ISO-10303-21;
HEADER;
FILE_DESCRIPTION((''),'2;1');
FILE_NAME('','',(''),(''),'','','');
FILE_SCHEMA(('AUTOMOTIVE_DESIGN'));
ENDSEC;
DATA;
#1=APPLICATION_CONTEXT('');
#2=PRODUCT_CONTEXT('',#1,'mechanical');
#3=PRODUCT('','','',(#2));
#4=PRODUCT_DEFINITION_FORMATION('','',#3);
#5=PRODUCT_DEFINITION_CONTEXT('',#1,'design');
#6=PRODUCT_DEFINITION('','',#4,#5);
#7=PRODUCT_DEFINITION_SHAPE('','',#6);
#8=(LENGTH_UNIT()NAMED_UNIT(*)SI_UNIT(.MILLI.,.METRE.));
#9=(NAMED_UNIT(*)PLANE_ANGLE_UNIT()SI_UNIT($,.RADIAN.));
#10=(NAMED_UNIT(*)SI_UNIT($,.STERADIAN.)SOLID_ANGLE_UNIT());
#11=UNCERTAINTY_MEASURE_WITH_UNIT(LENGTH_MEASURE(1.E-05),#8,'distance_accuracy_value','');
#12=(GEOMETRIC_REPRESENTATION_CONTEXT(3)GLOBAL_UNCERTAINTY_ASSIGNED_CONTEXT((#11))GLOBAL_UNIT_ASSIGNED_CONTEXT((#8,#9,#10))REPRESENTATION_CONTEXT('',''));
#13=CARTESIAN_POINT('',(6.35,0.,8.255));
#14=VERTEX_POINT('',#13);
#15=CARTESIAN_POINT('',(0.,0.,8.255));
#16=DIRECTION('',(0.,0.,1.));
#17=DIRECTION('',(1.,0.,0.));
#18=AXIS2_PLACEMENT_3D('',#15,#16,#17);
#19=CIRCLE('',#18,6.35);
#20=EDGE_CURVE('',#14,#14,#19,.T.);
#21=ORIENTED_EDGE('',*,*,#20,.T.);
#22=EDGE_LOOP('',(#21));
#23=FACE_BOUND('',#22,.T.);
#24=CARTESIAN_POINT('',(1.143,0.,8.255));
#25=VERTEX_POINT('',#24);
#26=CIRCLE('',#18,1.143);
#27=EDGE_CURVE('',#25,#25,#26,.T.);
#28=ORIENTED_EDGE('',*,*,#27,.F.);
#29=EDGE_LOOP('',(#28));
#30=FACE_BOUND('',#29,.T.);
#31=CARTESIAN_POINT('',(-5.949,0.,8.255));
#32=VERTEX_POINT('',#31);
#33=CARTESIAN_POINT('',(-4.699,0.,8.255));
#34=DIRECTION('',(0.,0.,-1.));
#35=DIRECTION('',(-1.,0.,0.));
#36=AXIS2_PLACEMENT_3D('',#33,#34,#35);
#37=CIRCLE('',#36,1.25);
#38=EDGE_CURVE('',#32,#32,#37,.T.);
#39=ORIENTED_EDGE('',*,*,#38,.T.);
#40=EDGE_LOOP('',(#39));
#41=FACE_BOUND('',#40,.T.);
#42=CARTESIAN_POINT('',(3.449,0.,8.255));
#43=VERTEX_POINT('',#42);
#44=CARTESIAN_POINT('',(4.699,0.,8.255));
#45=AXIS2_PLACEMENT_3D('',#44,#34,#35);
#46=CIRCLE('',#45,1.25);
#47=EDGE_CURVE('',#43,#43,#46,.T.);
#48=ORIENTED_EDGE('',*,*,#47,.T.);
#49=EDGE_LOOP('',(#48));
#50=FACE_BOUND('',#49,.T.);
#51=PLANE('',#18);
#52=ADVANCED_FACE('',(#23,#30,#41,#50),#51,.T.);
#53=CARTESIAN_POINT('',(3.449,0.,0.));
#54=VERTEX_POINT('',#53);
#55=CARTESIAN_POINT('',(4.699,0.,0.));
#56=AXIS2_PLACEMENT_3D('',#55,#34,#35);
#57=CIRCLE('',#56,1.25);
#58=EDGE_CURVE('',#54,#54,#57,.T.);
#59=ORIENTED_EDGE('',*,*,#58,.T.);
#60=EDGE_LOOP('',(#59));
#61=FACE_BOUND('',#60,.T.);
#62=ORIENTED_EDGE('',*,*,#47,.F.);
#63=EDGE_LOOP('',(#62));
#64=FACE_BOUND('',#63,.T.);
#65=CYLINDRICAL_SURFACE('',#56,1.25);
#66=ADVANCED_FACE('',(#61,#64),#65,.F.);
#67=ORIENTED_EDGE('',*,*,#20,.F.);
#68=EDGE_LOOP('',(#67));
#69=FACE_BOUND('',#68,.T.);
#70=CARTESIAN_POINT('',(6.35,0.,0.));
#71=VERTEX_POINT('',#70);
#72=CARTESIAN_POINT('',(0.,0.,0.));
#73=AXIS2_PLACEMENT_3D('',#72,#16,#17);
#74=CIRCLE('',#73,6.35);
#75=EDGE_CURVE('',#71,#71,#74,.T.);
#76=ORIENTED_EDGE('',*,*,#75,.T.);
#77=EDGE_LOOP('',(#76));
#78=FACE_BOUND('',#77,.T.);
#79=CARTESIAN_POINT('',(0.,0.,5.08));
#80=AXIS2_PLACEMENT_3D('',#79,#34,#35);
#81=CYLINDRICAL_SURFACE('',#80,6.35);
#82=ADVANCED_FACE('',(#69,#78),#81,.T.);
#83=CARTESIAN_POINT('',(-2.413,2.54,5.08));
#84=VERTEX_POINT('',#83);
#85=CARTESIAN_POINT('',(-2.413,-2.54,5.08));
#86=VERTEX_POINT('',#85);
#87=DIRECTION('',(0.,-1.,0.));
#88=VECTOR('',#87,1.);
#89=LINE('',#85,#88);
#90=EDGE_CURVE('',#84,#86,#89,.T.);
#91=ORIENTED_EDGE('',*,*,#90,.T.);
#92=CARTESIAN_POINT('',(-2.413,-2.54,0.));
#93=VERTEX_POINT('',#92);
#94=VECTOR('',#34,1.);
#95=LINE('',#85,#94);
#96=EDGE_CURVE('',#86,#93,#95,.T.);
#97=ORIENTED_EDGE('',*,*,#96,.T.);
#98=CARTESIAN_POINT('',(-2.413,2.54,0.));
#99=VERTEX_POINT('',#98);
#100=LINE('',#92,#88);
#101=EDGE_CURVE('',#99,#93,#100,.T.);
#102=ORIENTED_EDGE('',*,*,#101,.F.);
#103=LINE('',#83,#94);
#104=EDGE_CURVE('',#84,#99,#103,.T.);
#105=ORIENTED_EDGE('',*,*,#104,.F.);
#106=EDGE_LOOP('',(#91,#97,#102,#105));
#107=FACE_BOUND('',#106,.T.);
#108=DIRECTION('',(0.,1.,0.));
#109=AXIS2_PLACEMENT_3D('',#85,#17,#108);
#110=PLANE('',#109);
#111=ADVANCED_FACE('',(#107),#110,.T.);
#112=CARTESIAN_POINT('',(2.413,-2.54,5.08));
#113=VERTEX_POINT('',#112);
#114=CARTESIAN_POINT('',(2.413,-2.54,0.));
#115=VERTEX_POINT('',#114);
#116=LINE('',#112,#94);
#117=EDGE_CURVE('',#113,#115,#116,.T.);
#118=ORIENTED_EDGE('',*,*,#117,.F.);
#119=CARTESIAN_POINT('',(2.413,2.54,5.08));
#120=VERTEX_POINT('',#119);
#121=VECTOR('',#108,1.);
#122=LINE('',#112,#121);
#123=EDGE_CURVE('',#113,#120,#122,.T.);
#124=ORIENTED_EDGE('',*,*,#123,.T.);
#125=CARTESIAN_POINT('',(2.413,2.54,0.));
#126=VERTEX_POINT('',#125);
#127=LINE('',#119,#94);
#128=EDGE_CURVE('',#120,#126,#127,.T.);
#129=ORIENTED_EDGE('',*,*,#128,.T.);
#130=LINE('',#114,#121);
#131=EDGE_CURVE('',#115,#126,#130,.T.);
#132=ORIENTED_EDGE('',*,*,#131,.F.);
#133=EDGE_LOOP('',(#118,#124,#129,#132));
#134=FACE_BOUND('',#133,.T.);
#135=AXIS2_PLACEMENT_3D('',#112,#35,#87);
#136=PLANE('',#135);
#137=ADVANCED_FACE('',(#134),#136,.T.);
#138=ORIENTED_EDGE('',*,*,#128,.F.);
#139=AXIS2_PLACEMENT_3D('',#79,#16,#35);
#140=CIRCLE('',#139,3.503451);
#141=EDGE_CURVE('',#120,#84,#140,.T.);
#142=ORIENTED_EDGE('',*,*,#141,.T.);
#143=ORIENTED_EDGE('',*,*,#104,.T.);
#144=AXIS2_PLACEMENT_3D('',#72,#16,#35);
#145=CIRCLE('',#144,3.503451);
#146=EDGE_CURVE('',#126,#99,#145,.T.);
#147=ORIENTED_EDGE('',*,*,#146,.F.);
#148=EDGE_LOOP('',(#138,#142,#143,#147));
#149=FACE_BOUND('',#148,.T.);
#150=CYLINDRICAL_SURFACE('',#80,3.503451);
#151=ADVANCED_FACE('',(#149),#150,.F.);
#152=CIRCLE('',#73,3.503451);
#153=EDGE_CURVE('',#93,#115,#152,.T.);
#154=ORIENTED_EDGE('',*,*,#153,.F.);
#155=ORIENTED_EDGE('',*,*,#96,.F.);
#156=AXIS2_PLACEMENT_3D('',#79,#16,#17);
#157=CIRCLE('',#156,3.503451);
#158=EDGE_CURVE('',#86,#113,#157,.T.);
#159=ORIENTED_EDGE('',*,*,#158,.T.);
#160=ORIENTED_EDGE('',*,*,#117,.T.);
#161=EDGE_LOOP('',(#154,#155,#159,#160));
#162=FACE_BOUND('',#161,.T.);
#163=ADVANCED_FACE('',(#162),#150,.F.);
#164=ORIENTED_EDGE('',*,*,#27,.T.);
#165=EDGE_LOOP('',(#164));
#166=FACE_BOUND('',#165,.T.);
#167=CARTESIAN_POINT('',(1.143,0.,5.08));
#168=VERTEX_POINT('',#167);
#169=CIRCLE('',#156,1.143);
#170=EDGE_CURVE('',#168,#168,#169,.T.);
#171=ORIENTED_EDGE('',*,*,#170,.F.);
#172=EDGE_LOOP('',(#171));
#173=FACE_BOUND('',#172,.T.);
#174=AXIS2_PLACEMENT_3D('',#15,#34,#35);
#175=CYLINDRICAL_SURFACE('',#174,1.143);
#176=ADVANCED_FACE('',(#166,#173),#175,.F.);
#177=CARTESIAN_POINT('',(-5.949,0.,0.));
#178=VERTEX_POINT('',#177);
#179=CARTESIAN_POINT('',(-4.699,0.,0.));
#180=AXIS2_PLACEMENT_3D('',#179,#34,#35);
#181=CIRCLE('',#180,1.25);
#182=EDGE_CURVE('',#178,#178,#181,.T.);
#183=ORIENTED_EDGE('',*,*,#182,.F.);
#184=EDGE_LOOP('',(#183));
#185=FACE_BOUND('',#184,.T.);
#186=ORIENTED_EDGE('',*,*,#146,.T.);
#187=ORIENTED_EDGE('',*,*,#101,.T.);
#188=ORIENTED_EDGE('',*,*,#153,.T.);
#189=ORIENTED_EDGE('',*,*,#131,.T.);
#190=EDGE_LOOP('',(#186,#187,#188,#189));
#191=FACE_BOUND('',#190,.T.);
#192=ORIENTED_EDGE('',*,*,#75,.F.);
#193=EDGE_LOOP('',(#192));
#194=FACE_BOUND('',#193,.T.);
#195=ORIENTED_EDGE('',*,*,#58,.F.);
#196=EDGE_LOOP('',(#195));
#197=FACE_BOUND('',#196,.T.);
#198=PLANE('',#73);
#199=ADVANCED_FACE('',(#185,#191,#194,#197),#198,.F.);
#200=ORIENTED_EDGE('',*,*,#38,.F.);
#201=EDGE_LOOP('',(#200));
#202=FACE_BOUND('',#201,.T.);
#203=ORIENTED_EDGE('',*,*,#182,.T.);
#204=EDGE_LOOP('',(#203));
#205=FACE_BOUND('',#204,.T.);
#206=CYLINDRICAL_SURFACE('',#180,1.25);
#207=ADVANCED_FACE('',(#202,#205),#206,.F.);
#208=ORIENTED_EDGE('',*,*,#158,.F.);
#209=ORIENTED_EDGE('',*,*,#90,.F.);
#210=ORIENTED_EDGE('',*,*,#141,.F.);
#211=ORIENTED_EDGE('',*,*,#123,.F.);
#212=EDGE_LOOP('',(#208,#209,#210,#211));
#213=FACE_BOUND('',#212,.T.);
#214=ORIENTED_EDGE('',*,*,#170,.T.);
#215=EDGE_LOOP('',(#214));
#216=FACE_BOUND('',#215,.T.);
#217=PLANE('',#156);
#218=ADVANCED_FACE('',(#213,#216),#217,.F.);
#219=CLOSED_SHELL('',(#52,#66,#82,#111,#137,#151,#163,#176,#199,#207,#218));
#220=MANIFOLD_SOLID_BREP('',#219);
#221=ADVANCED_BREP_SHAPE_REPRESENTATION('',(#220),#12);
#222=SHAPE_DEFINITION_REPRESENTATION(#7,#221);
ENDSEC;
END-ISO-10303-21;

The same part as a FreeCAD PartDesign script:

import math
import FreeCAD as App
import Part
import Sketcher
Q = App.Units.Quantity

doc = App.newDocument("Part")
body = doc.addObject("PartDesign::Body", "Body")

sketch1 = body.newObject("Sketcher::SketchObject", "Sketch")
sketch1.AttachmentSupport = (doc.getObject("XY_Plane"), [""])
sketch1.MapMode = "FlatFace"
sketch1.addGeometry([
    Part.Circle(App.Vector(0, 0, 0), App.Vector(0, 0, 1), 6.3),
    Part.ArcOfCircle(Part.Circle(App.Vector(0, 0, 0), App.Vector(0, 0, 1), 3.5), math.radians(-134), math.radians(-46)),
    Part.LineSegment(App.Vector(-2.4, -2.5, 0), App.Vector(-2.4, 2.5, 0)),
    Part.ArcOfCircle(Part.Circle(App.Vector(0, 0, 0), App.Vector(0, 0, 1), 3.5), math.radians(46), math.radians(134)),
    Part.LineSegment(App.Vector(2.4, 2.5, 0), App.Vector(2.4, -2.5, 0)),
], False)
sketch1.addConstraint([
    Sketcher.Constraint("Coincident", 1, 1, 2, 1),
    Sketcher.Constraint("Coincident", 2, 2, 3, 2),
    Sketcher.Constraint("Coincident", 3, 1, 4, 1),
    Sketcher.Constraint("Coincident", 4, 2, 1, 2),
    Sketcher.Constraint("Vertical", 2),
    Sketcher.Constraint("Vertical", 4),
    Sketcher.Constraint("Coincident", 0, 3, -1, 1),
    Sketcher.Constraint("Coincident", 1, 3, -1, 1),
    Sketcher.Constraint("Coincident", 3, 3, -1, 1),
    Sketcher.Constraint("Equal", 1, 3),
    Sketcher.Constraint("Horizontal", 2, 2, 3, 1),
    Sketcher.Constraint("Diameter", 0, Q("0.5 in")),
    Sketcher.Constraint("DistanceY", 2, 1, 2, 2, Q("0.2 in")),
    Sketcher.Constraint("DistanceX", 2, 2, 3, 1, Q("0.19 in")),
])
pad1 = body.newObject("PartDesign::Pad", "Pad")
pad1.Profile = sketch1
pad1.Length = Q("0.2 in")

sketch2 = body.newObject("Sketcher::SketchObject", "Sketch001")
sketch2.AttachmentSupport = (doc.getObject("XY_Plane"), [""])
sketch2.MapMode = "FlatFace"
sketch2.AttachmentOffset = App.Placement(App.Vector(0, 0, 0.2 * 25.4), App.Rotation())
sketch2.addGeometry([
    Part.Circle(App.Vector(0, 0, 0), App.Vector(0, 0, 1), 6.3),
    Part.Circle(App.Vector(0, 0, 0), App.Vector(0, 0, 1), 1.1),
], False)
sketch2.addConstraint([
    Sketcher.Constraint("Coincident", 0, 3, -1, 1),
    Sketcher.Constraint("Coincident", 1, 3, -1, 1),
    Sketcher.Constraint("Diameter", 0, Q("0.5 in")),
    Sketcher.Constraint("Diameter", 1, Q("0.09 in")),
])
pad2 = body.newObject("PartDesign::Pad", "Pad001")
pad2.Profile = sketch2
pad2.Length = Q("0.125 in")

sketch3 = body.newObject("Sketcher::SketchObject", "Sketch002")
sketch3.AttachmentSupport = (doc.getObject("XY_Plane"), [""])
sketch3.MapMode = "FlatFace"
sketch3.addGeometry([
    Part.Circle(App.Vector(4.7, 0, 0), App.Vector(0, 0, 1), 1.2),
    Part.Circle(App.Vector(-4.7, 0, 0), App.Vector(0, 0, 1), 1.2),
], False)
sketch3.addConstraint([
    Sketcher.Constraint("Equal", 0, 1),
    Sketcher.Constraint("Symmetric", 0, 3, 1, 3, -1, 1),
    Sketcher.Constraint("PointOnObject", 0, 3, -1),
    Sketcher.Constraint("Diameter", 0, Q("2.5 mm")),
    Sketcher.Constraint("DistanceX", 1, 3, 0, 3, Q("0.37 in")),
])
doc.recompute()
hole = body.newObject("PartDesign::Hole", "Hole")
hole.Profile = sketch3
hole.ThreadType = "None"
hole.Diameter = 2.5
hole.DepthType = "ThroughAll"
hole.Reversed = True

doc.recompute()
